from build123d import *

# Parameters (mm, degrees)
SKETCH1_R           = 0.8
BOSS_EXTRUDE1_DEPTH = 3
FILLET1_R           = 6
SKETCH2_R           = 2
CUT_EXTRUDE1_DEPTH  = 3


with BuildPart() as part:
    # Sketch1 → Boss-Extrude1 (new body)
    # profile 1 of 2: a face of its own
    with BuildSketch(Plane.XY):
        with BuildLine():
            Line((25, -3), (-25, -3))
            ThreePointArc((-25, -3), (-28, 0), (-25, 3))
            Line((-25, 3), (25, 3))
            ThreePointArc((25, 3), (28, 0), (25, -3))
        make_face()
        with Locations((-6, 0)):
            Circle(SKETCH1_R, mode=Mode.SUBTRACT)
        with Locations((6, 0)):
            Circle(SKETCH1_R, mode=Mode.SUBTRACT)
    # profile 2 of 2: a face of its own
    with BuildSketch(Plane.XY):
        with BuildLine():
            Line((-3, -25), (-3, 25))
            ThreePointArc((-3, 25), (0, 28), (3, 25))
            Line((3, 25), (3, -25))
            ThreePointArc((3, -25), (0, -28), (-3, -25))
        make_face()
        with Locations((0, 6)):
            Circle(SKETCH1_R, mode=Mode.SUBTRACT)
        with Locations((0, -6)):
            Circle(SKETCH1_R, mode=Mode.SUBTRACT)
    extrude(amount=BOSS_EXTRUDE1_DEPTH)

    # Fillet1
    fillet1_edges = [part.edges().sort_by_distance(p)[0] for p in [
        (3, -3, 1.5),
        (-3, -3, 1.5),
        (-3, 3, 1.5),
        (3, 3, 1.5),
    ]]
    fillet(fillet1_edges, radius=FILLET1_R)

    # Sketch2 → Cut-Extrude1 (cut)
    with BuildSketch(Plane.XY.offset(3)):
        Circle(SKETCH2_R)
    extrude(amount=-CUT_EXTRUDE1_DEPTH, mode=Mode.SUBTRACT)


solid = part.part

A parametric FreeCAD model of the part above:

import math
import FreeCAD as App
import Part
import Sketcher

V = App.Vector
Q = App.Units.Quantity


def edges_at(feature, points):
    """Names of the edges that pass closest to the given points."""
    edges = feature.Shape.Edges
    near = lambda p: min(range(len(edges)), key=lambda i: edges[i].distToShape(Part.Vertex(*p))[0])
    return sorted({f"Edge{near(p) + 1}" for p in points})

doc = App.newDocument("Part")
params = doc.addObject("Spreadsheet::Sheet", "Params")
for row, (alias, value) in enumerate([
    ("sketch1_radius", "3 mm"),
    ("sketch1_diameter", "1.6 mm"),
    ("sketch1_width", "22 mm"),
    ("pad1_length", "3 mm"),
    ("fillet_radius", "6 mm"),
    ("sketch2_diameter", "4 mm"),
    ("pocket1_length", "3 mm"),
], start=1):
    params.set(f"A{row}", alias)
    params.set(f"B{row}", "=" + value)
    params.setAlias(f"B{row}", alias)

body = doc.addObject("PartDesign::Body", "Body")

# Sketch on XY plane
sketch1 = body.newObject("Sketcher::SketchObject", "Sketch")
sketch1.AttachmentSupport = (doc.getObject("XY_Plane"), [""])
sketch1.MapMode = "FlatFace"
sketch1.addGeometry(Part.ArcOfCircle(Part.Circle(V(25, 0, 0), V(0, 0, 1), 3), math.radians(-90), math.radians(90)), False)
sketch1.addGeometry(Part.LineSegment(V(25, 3, 0), V(3, 3, 0)), False)
sketch1.addGeometry(Part.LineSegment(V(3, 3, 0), V(3, 25, 0)), False)
sketch1.addGeometry(Part.ArcOfCircle(Part.Circle(V(0, 25, 0), V(0, 0, 1), 3), math.radians(0), math.radians(180)), False)
sketch1.addGeometry(Part.LineSegment(V(-3, 25, 0), V(-3, 3, 0)), False)
sketch1.addGeometry(Part.LineSegment(V(-3, 3, 0), V(-25, 3, 0)), False)
sketch1.addGeometry(Part.ArcOfCircle(Part.Circle(V(-25, 0, 0), V(0, 0, 1), 3), math.radians(90), math.radians(270)), False)
sketch1.addGeometry(Part.LineSegment(V(-25, -3, 0), V(-3, -3, 0)), False)
sketch1.addGeometry(Part.LineSegment(V(-3, -3, 0), V(-3, -25, 0)), False)
sketch1.addGeometry(Part.ArcOfCircle(Part.Circle(V(0, -25, 0), V(0, 0, 1), 3), math.radians(180), math.radians(360)), False)
sketch1.addGeometry(Part.LineSegment(V(3, -25, 0), V(3, -3, 0)), False)
sketch1.addGeometry(Part.LineSegment(V(3, -3, 0), V(25, -3, 0)), False)
sketch1.addGeometry(Part.Circle(V(6, 0, 0), V(0, 0, 1), 0.8), False)
sketch1.addGeometry(Part.Circle(V(0, -6, 0), V(0, 0, 1), 0.8), False)
sketch1.addGeometry(Part.Circle(V(0, 6, 0), V(0, 0, 1), 0.8), False)
sketch1.addGeometry(Part.Circle(V(-6, 0, 0), V(0, 0, 1), 0.8), False)
sketch1.addConstraint(Sketcher.Constraint("Tangent", 0, 2, 1, 1))
sketch1.addConstraint(Sketcher.Constraint("Coincident", 1, 2, 2, 1))
sketch1.addConstraint(Sketcher.Constraint("Tangent", 2, 2, 3, 1))
sketch1.addConstraint(Sketcher.Constraint("Tangent", 3, 2, 4, 1))
sketch1.addConstraint(Sketcher.Constraint("Coincident", 4, 2, 5, 1))
sketch1.addConstraint(Sketcher.Constraint("Tangent", 5, 2, 6, 1))
sketch1.addConstraint(Sketcher.Constraint("Tangent", 6, 2, 7, 1))
sketch1.addConstraint(Sketcher.Constraint("Coincident", 7, 2, 8, 1))
sketch1.addConstraint(Sketcher.Constraint("Tangent", 8, 2, 9, 1))
sketch1.addConstraint(Sketcher.Constraint("Tangent", 9, 2, 10, 1))
sketch1.addConstraint(Sketcher.Constraint("Coincident", 10, 2, 11, 1))
sketch1.addConstraint(Sketcher.Constraint("Tangent", 11, 2, 0, 1))
sketch1.addConstraint(Sketcher.Constraint("Horizontal", 1))
sketch1.addConstraint(Sketcher.Constraint("Vertical", 2))
sketch1.addConstraint(Sketcher.Constraint("Vertical", 4))
sketch1.addConstraint(Sketcher.Constraint("Horizontal", 5))
sketch1.addConstraint(Sketcher.Constraint("Horizontal", 7))
sketch1.addConstraint(Sketcher.Constraint("Vertical", 8))
sketch1.addConstraint(Sketcher.Constraint("Vertical", 10))
sketch1.addConstraint(Sketcher.Constraint("Horizontal", 11))
sketch1.addConstraint(Sketcher.Constraint("Equal", 0, 3))
sketch1.addConstraint(Sketcher.Constraint("Equal", 3, 6))
sketch1.addConstraint(Sketcher.Constraint("Equal", 6, 9))
sketch1.addConstraint(Sketcher.Constraint("Equal", 12, 13))
sketch1.addConstraint(Sketcher.Constraint("Equal", 13, 14))
sketch1.addConstraint(Sketcher.Constraint("Equal", 14, 15))
sketch1.addConstraint(Sketcher.Constraint("Symmetric", 0, 3, 6, 3, -1, 1))
sketch1.addConstraint(Sketcher.Constraint("Symmetric", 3, 3, 9, 3, -1, 1))
sketch1.addConstraint(Sketcher.Constraint("Symmetric", 13, 3, 14, 3, -1, 1))
sketch1.addConstraint(Sketcher.Constraint("Symmetric", 12, 3, 15, 3, -1, 1))
sketch1.addConstraint(Sketcher.Constraint("Symmetric", 1, 2, 4, 2, -2))
sketch1.addConstraint(Sketcher.Constraint("PointOnObject", 12, 3, -1))
sketch1.addConstraint(Sketcher.Constraint("PointOnObject", 13, 3, -2))
sketch1.addConstraint(Sketcher.Constraint("Equal", 11, 2))
sketch1.addConstraint(Sketcher.Constraint("Radius", 0, Q("3 mm")))
sketch1.addConstraint(Sketcher.Constraint("Diameter", 12, Q("1.6 mm")))
sketch1.addConstraint(Sketcher.Constraint("DistanceX", 1, 2, 1, 1, Q("22 mm")))
sketch1.addConstraint(Sketcher.Constraint("DistanceX", -1, 1, 12, 3, Q("6 mm")))
sketch1.addConstraint(Sketcher.Constraint("DistanceY", 13, 3, -1, 1, Q("6 mm")))
sketch1.setExpression("Constraints[34]", "Params.sketch1_radius")
sketch1.setExpression("Constraints[35]", "Params.sketch1_diameter")
sketch1.setExpression("Constraints[36]", "Params.sketch1_width")
pad1 = body.newObject("PartDesign::Pad", "Pad")
pad1.Profile = sketch1
pad1.setExpression("Length", "Params.pad1_length")
doc.recompute()

fillet = body.newObject("PartDesign::Fillet", "Fillet")
fillet.Base = (pad1, edges_at(pad1, [
    (3, -3, 1.5),
    (-3, -3, 1.5),
    (-3, 3, 1.5),
    (3, 3, 1.5),
]))
fillet.setExpression("Radius", "Params.fillet_radius")

# Sketch on XY plane
sketch2 = body.newObject("Sketcher::SketchObject", "Sketch001")
sketch2.AttachmentSupport = (doc.getObject("XY_Plane"), [""])
sketch2.MapMode = "FlatFace"
sketch2.AttachmentOffset = App.Placement(V(0, 0, 3), App.Rotation())
sketch2.addGeometry(Part.Circle(V(0, 0, 0), V(0, 0, 1), 2), False)
sketch2.addConstraint(Sketcher.Constraint("Coincident", 0, 3, -1, 1))
sketch2.addConstraint(Sketcher.Constraint("Diameter", 0, Q("4 mm")))
sketch2.setExpression("Constraints[1]", "Params.sketch2_diameter")
pocket1 = body.newObject("PartDesign::Pocket", "Pocket")
pocket1.Profile = sketch2
pocket1.setExpression("Length", "Params.pocket1_length")

doc.recompute()
